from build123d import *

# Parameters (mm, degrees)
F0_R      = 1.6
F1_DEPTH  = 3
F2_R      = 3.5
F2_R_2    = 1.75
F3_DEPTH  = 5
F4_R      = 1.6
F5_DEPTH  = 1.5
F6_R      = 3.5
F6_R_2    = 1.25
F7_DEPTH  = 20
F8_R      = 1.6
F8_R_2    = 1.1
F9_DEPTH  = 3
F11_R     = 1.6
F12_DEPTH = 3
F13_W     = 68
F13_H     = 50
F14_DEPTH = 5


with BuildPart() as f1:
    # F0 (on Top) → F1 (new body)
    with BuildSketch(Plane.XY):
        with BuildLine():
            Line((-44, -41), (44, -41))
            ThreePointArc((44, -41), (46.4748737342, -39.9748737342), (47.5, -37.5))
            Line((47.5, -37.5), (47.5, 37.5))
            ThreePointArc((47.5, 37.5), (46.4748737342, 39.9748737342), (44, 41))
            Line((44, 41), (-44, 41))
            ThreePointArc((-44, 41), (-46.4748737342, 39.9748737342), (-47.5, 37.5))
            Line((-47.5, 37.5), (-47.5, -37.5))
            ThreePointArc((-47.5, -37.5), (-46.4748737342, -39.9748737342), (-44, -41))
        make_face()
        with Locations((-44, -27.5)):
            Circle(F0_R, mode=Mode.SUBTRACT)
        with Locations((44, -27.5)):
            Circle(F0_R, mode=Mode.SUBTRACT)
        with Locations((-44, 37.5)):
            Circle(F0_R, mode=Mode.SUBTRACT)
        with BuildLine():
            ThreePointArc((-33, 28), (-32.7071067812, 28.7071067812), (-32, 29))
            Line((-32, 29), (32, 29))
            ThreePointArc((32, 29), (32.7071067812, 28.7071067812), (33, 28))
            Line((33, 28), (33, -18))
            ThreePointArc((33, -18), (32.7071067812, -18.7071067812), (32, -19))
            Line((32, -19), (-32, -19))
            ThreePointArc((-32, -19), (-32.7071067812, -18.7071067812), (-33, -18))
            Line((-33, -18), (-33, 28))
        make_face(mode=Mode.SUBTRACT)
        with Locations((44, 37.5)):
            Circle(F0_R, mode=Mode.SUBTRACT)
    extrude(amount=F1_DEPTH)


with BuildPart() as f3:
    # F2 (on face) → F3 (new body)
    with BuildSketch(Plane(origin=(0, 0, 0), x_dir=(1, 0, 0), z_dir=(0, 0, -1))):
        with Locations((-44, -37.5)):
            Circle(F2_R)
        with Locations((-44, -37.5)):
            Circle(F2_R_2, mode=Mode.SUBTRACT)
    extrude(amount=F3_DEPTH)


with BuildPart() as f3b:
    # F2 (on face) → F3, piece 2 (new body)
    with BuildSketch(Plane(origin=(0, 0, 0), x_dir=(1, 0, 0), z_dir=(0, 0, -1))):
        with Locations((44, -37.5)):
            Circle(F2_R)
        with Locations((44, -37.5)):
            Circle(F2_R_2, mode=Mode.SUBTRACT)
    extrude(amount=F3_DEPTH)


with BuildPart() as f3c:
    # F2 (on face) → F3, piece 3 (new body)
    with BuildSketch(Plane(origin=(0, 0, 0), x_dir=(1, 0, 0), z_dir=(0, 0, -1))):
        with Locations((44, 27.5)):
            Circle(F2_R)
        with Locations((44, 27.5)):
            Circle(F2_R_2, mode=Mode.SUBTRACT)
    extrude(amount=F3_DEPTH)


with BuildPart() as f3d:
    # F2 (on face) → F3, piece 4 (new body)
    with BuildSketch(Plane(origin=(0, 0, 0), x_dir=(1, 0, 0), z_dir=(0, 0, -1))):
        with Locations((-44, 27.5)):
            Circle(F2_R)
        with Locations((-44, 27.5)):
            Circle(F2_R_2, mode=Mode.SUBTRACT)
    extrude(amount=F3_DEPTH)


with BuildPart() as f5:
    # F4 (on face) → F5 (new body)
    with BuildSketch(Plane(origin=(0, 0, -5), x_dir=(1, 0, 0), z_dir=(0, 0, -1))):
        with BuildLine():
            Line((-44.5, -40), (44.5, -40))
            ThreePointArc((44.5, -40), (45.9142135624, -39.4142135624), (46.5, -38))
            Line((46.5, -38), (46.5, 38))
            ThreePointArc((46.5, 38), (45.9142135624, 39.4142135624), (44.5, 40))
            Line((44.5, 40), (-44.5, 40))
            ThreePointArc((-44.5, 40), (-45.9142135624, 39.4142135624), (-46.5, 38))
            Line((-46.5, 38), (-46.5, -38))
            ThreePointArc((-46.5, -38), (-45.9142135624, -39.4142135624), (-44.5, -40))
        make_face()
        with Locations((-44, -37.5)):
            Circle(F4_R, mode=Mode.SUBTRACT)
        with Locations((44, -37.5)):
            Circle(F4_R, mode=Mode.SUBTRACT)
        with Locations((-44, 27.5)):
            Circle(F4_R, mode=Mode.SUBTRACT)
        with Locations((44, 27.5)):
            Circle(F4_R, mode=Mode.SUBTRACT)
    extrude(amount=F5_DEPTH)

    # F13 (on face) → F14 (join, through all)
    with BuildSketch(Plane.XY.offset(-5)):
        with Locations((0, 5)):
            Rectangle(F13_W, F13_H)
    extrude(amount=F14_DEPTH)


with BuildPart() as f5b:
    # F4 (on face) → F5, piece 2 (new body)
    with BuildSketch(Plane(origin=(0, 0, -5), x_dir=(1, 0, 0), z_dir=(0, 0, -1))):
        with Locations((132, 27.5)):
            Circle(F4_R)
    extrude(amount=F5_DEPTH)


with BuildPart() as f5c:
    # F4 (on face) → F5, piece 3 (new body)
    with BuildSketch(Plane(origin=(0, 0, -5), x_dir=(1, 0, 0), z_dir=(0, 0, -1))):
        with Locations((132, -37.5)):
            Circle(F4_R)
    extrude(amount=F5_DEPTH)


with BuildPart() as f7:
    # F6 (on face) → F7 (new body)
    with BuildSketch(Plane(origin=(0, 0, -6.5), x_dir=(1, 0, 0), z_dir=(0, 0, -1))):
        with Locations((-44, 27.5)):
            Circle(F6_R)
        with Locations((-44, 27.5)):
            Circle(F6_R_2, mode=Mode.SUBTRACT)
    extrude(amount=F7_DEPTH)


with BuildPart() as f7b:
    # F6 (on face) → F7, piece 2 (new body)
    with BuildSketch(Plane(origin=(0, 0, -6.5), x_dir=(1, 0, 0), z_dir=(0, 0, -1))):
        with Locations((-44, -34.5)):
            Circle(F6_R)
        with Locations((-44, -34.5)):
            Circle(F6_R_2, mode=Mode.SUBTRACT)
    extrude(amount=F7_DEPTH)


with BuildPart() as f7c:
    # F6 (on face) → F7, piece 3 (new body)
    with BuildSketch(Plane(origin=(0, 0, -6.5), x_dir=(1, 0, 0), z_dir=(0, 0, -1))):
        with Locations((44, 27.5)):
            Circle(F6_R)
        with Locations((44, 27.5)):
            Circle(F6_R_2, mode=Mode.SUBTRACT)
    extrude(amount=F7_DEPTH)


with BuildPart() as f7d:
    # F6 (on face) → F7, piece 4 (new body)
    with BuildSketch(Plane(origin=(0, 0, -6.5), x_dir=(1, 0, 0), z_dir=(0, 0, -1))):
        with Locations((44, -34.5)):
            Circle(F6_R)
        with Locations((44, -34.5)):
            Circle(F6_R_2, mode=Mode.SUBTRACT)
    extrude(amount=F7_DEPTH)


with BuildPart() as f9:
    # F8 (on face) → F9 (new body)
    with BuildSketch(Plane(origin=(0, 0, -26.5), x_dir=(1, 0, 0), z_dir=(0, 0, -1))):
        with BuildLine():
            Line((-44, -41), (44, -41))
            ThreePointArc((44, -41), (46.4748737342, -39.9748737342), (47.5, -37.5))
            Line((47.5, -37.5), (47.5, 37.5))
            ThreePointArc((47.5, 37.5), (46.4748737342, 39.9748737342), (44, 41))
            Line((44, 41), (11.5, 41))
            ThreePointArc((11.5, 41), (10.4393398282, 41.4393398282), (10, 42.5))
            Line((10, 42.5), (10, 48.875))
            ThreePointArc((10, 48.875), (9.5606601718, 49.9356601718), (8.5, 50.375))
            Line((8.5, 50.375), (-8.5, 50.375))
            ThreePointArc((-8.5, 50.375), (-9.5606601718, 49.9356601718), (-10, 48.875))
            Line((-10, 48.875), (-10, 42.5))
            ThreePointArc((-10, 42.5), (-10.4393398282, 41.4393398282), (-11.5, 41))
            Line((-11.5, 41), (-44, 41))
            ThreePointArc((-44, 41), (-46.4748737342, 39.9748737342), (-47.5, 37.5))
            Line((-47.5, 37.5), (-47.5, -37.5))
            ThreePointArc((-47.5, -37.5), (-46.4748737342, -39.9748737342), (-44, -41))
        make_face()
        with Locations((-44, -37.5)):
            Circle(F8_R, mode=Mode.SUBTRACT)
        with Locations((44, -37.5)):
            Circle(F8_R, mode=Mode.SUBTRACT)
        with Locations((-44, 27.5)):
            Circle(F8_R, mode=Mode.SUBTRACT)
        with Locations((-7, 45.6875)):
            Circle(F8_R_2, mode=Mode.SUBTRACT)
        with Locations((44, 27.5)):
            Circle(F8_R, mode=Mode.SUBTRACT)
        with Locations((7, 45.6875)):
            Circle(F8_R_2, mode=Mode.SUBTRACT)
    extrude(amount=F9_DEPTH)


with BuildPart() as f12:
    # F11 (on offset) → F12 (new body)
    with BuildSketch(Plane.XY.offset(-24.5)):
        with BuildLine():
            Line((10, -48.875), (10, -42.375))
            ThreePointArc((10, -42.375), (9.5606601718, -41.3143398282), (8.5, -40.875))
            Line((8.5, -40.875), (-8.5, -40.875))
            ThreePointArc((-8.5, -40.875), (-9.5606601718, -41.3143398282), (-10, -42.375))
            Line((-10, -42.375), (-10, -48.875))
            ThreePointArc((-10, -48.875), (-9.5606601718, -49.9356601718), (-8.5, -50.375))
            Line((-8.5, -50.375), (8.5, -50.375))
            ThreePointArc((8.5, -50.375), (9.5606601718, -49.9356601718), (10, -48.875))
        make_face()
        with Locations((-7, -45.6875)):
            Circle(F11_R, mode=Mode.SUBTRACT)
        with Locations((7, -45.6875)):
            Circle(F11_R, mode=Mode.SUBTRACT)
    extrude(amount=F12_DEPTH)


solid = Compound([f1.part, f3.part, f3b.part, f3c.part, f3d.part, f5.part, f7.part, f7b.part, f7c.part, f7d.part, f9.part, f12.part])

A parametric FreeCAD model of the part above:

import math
import FreeCAD as App
import Part
import Sketcher
Q = App.Units.Quantity


def add_polygon(sketch, points):
    """Adds a closed chain of lines whose ends are joined by coincident constraints."""
    first, n = sketch.GeometryCount, len(points)
    for a, b in zip(points, points[1:] + points[:1]):
        sketch.addGeometry(Part.LineSegment(App.Vector(*a, 0), App.Vector(*b, 0)), False)
    for i in range(n):
        sketch.addConstraint(Sketcher.Constraint("Coincident", first + i, 2, first + (i + 1) % n, 1))

doc = App.newDocument("Part")
body = doc.addObject("PartDesign::Body", "Body")

# Sketch on XY plane
sketch1 = body.newObject("Sketcher::SketchObject", "Sketch")
sketch1.AttachmentSupport = (doc.getObject("XY_Plane"), [""])
sketch1.MapMode = "FlatFace"
sketch1.addGeometry(Part.LineSegment(App.Vector(-44, -41, 0), App.Vector(44, -41, 0)), False)
sketch1.addGeometry(Part.ArcOfCircle(Part.Circle(App.Vector(44, -37.5, 0), App.Vector(0, 0, 1), 3.5), math.radians(-90), math.radians(0)), False)
sketch1.addGeometry(Part.LineSegment(App.Vector(47.5, -37.5, 0), App.Vector(47.5, 37.5, 0)), False)
sketch1.addGeometry(Part.ArcOfCircle(Part.Circle(App.Vector(44, 37.5, 0), App.Vector(0, 0, 1), 3.5), math.radians(0), math.radians(90)), False)
sketch1.addGeometry(Part.LineSegment(App.Vector(44, 41, 0), App.Vector(-44, 41, 0)), False)
sketch1.addGeometry(Part.ArcOfCircle(Part.Circle(App.Vector(-44, 37.5, 0), App.Vector(0, 0, 1), 3.5), math.radians(90), math.radians(180)), False)
sketch1.addGeometry(Part.LineSegment(App.Vector(-47.5, 37.5, 0), App.Vector(-47.5, -37.5, 0)), False)
sketch1.addGeometry(Part.ArcOfCircle(Part.Circle(App.Vector(-44, -37.5, 0), App.Vector(0, 0, 1), 3.5), math.radians(180), math.radians(270)), False)
sketch1.addGeometry(Part.Circle(App.Vector(-44, -27.5, 0), App.Vector(0, 0, 1), 1.6), False)
sketch1.addGeometry(Part.Circle(App.Vector(44, -27.5, 0), App.Vector(0, 0, 1), 1.6), False)
sketch1.addGeometry(Part.Circle(App.Vector(-44, 37.5, 0), App.Vector(0, 0, 1), 1.6), False)
sketch1.addGeometry(Part.LineSegment(App.Vector(-33, -18, 0), App.Vector(-33, 28, 0)), False)
sketch1.addGeometry(Part.ArcOfCircle(Part.Circle(App.Vector(-32, 28, 0), App.Vector(0, 0, 1), 1), math.radians(90), math.radians(180)), False)
sketch1.addGeometry(Part.LineSegment(App.Vector(-32, 29, 0), App.Vector(32, 29, 0)), False)
sketch1.addGeometry(Part.ArcOfCircle(Part.Circle(App.Vector(32, 28, 0), App.Vector(0, 0, 1), 1), math.radians(0), math.radians(90)), False)
sketch1.addGeometry(Part.LineSegment(App.Vector(33, 28, 0), App.Vector(33, -18, 0)), False)
sketch1.addGeometry(Part.ArcOfCircle(Part.Circle(App.Vector(32, -18, 0), App.Vector(0, 0, 1), 1), math.radians(-90), math.radians(0)), False)
sketch1.addGeometry(Part.LineSegment(App.Vector(32, -19, 0), App.Vector(-32, -19, 0)), False)
sketch1.addGeometry(Part.ArcOfCircle(Part.Circle(App.Vector(-32, -18, 0), App.Vector(0, 0, 1), 1), math.radians(180), math.radians(270)), False)
sketch1.addGeometry(Part.Circle(App.Vector(44, 37.5, 0), App.Vector(0, 0, 1), 1.6), False)
sketch1.addConstraint(Sketcher.Constraint("Tangent", 0, 2, 1, 1))
sketch1.addConstraint(Sketcher.Constraint("Tangent", 1, 2, 2, 1))
sketch1.addConstraint(Sketcher.Constraint("Tangent", 2, 2, 3, 1))
sketch1.addConstraint(Sketcher.Constraint("Tangent", 3, 2, 4, 1))
sketch1.addConstraint(Sketcher.Constraint("Tangent", 4, 2, 5, 1))
sketch1.addConstraint(Sketcher.Constraint("Tangent", 5, 2, 6, 1))
sketch1.addConstraint(Sketcher.Constraint("Tangent", 6, 2, 7, 1))
sketch1.addConstraint(Sketcher.Constraint("Tangent", 7, 2, 0, 1))
sketch1.addConstraint(Sketcher.Constraint("Tangent", 11, 2, 12, 2))
sketch1.addConstraint(Sketcher.Constraint("Tangent", 12, 1, 13, 1))
sketch1.addConstraint(Sketcher.Constraint("Tangent", 13, 2, 14, 2))
sketch1.addConstraint(Sketcher.Constraint("Tangent", 14, 1, 15, 1))
sketch1.addConstraint(Sketcher.Constraint("Tangent", 15, 2, 16, 2))
sketch1.addConstraint(Sketcher.Constraint("Tangent", 16, 1, 17, 1))
sketch1.addConstraint(Sketcher.Constraint("Tangent", 17, 2, 18, 2))
sketch1.addConstraint(Sketcher.Constraint("Tangent", 18, 1, 11, 1))
sketch1.addConstraint(Sketcher.Constraint("Horizontal", 0))
sketch1.addConstraint(Sketcher.Constraint("Vertical", 2))
sketch1.addConstraint(Sketcher.Constraint("Horizontal", 4))
sketch1.addConstraint(Sketcher.Constraint("Vertical", 6))
sketch1.addConstraint(Sketcher.Constraint("Vertical", 11))
sketch1.addConstraint(Sketcher.Constraint("Horizontal", 13))
sketch1.addConstraint(Sketcher.Constraint("Vertical", 15))
sketch1.addConstraint(Sketcher.Constraint("Horizontal", 17))
sketch1.addConstraint(Sketcher.Constraint("Coincident", 10, 3, 5, 3))
sketch1.addConstraint(Sketcher.Constraint("Coincident", 19, 3, 3, 3))
sketch1.addConstraint(Sketcher.Constraint("Equal", 1, 3))
sketch1.addConstraint(Sketcher.Constraint("Equal", 3, 5))
sketch1.addConstraint(Sketcher.Constraint("Equal", 5, 7))
sketch1.addConstraint(Sketcher.Constraint("Equal", 8, 9))
sketch1.addConstraint(Sketcher.Constraint("Equal", 9, 10))
sketch1.addConstraint(Sketcher.Constraint("Equal", 12, 14))
sketch1.addConstraint(Sketcher.Constraint("Equal", 14, 16))
sketch1.addConstraint(Sketcher.Constraint("Equal", 16, 18))
sketch1.addConstraint(Sketcher.Constraint("Equal", 10, 19))
sketch1.addConstraint(Sketcher.Constraint("Symmetric", 1, 3, 5, 3, -1, 1))
sketch1.addConstraint(Sketcher.Constraint("Symmetric", 8, 3, 9, 3, -2))
sketch1.addConstraint(Sketcher.Constraint("Vertical", 7, 3, 8, 3))
sketch1.addConstraint(Sketcher.Constraint("Radius", 12, Q("1 mm")))
sketch1.addConstraint(Sketcher.Constraint("Diameter", 8, Q("3.2 mm")))
sketch1.addConstraint(Sketcher.Constraint("Radius", 1, Q("3.5 mm")))
sketch1.addConstraint(Sketcher.Constraint("DistanceX", 0, 1, 0, 2, Q("88 mm")))
sketch1.addConstraint(Sketcher.Constraint("DistanceX", 13, 1, 13, 2, Q("64 mm")))
sketch1.addConstraint(Sketcher.Constraint("DistanceY", 2, 1, 2, 2, Q("75 mm")))
sketch1.addConstraint(Sketcher.Constraint("DistanceY", 11, 1, 11, 2, Q("46 mm")))
sketch1.addConstraint(Sketcher.Constraint("DistanceX", 12, 3, -1, 1, Q("32 mm")))
sketch1.addConstraint(Sketcher.Constraint("DistanceY", -1, 1, 12, 3, Q("28 mm")))
sketch1.addConstraint(Sketcher.Constraint("DistanceY", 7, 3, 8, 3, Q("10 mm")))
pad1 = body.newObject("PartDesign::Pad", "Pad")
pad1.Profile = sketch1
pad1.Length = 3
body2 = doc.addObject("PartDesign::Body", "Body001")

# Sketch on XY plane
sketch2 = body2.newObject("Sketcher::SketchObject", "Sketch001")
sketch2.AttachmentSupport = (doc.getObject("XY_Plane001"), [""])
sketch2.MapMode = "FlatFace"
sketch2.addGeometry(Part.Circle(App.Vector(-44, 37.5, 0), App.Vector(0, 0, 1), 3.5), False)
sketch2.addGeometry(Part.Circle(App.Vector(-44, 37.5, 0), App.Vector(0, 0, 1), 1.75), False)
sketch2.addConstraint(Sketcher.Constraint("Coincident", 1, 3, 0, 3))
sketch2.addConstraint(Sketcher.Constraint("Diameter", 0, Q("7 mm")))
sketch2.addConstraint(Sketcher.Constraint("Diameter", 1, Q("3.5 mm")))
sketch2.addConstraint(Sketcher.Constraint("DistanceX", 0, 3, -1, 1, Q("44 mm")))
sketch2.addConstraint(Sketcher.Constraint("DistanceY", -1, 1, 0, 3, Q("37.5 mm")))
pad2 = body2.newObject("PartDesign::Pad", "Pad001")
pad2.Profile = sketch2
pad2.Length = 5
pad2.Reversed = True
body3 = doc.addObject("PartDesign::Body", "Body002")

# Sketch on XY plane
sketch3 = body3.newObject("Sketcher::SketchObject", "Sketch002")
sketch3.AttachmentSupport = (doc.getObject("XY_Plane002"), [""])
sketch3.MapMode = "FlatFace"
sketch3.addGeometry(Part.Circle(App.Vector(44, 37.5, 0), App.Vector(0, 0, 1), 3.5), False)
sketch3.addGeometry(Part.Circle(App.Vector(44, 37.5, 0), App.Vector(0, 0, 1), 1.75), False)
sketch3.addConstraint(Sketcher.Constraint("Coincident", 1, 3, 0, 3))
sketch3.addConstraint(Sketcher.Constraint("Diameter", 0, Q("7 mm")))
sketch3.addConstraint(Sketcher.Constraint("Diameter", 1, Q("3.5 mm")))
sketch3.addConstraint(Sketcher.Constraint("DistanceX", -1, 1, 0, 3, Q("44 mm")))
sketch3.addConstraint(Sketcher.Constraint("DistanceY", -1, 1, 0, 3, Q("37.5 mm")))
pad3 = body3.newObject("PartDesign::Pad", "Pad002")
pad3.Profile = sketch3
pad3.Length = 5
pad3.Reversed = True
body4 = doc.addObject("PartDesign::Body", "Body003")

# Sketch on XY plane
sketch4 = body4.newObject("Sketcher::SketchObject", "Sketch003")
sketch4.AttachmentSupport = (doc.getObject("XY_Plane003"), [""])
sketch4.MapMode = "FlatFace"
sketch4.addGeometry(Part.Circle(App.Vector(44, -27.5, 0), App.Vector(0, 0, 1), 3.5), False)
sketch4.addGeometry(Part.Circle(App.Vector(44, -27.5, 0), App.Vector(0, 0, 1), 1.75), False)
sketch4.addConstraint(Sketcher.Constraint("Coincident", 1, 3, 0, 3))
sketch4.addConstraint(Sketcher.Constraint("Diameter", 0, Q("7 mm")))
sketch4.addConstraint(Sketcher.Constraint("Diameter", 1, Q("3.5 mm")))
sketch4.addConstraint(Sketcher.Constraint("DistanceX", -1, 1, 0, 3, Q("44 mm")))
sketch4.addConstraint(Sketcher.Constraint("DistanceY", 0, 3, -1, 1, Q("27.5 mm")))
pad4 = body4.newObject("PartDesign::Pad", "Pad003")
pad4.Profile = sketch4
pad4.Length = 5
pad4.Reversed = True
body5 = doc.addObject("PartDesign::Body", "Body004")

# Sketch on XY plane
sketch5 = body5.newObject("Sketcher::SketchObject", "Sketch004")
sketch5.AttachmentSupport = (doc.getObject("XY_Plane004"), [""])
sketch5.MapMode = "FlatFace"
sketch5.addGeometry(Part.Circle(App.Vector(-44, -27.5, 0), App.Vector(0, 0, 1), 3.5), False)
sketch5.addGeometry(Part.Circle(App.Vector(-44, -27.5, 0), App.Vector(0, 0, 1), 1.75), False)
sketch5.addConstraint(Sketcher.Constraint("Coincident", 1, 3, 0, 3))
sketch5.addConstraint(Sketcher.Constraint("Diameter", 0, Q("7 mm")))
sketch5.addConstraint(Sketcher.Constraint("Diameter", 1, Q("3.5 mm")))
sketch5.addConstraint(Sketcher.Constraint("DistanceX", 0, 3, -1, 1, Q("44 mm")))
sketch5.addConstraint(Sketcher.Constraint("DistanceY", 0, 3, -1, 1, Q("27.5 mm")))
pad5 = body5.newObject("PartDesign::Pad", "Pad004")
pad5.Profile = sketch5
pad5.Length = 5
pad5.Reversed = True
body6 = doc.addObject("PartDesign::Body", "Body005")

# Sketch on XY plane
sketch6 = body6.newObject("Sketcher::SketchObject", "Sketch005")
sketch6.AttachmentSupport = (doc.getObject("XY_Plane005"), [""])
sketch6.MapMode = "FlatFace"
sketch6.AttachmentOffset = App.Placement(App.Vector(0, 0, -5), App.Rotation())
sketch6.addGeometry(Part.LineSegment(App.Vector(-44.5, 40, 0), App.Vector(44.5, 40, 0)), False)
sketch6.addGeometry(Part.ArcOfCircle(Part.Circle(App.Vector(44.5, 38, 0), App.Vector(0, 0, 1), 2), math.radians(0), math.radians(90)), False)
sketch6.addGeometry(Part.LineSegment(App.Vector(46.5, 38, 0), App.Vector(46.5, -38, 0)), False)
sketch6.addGeometry(Part.ArcOfCircle(Part.Circle(App.Vector(44.5, -38, 0), App.Vector(0, 0, 1), 2), math.radians(-90), math.radians(0)), False)
sketch6.addGeometry(Part.LineSegment(App.Vector(44.5, -40, 0), App.Vector(-44.5, -40, 0)), False)
sketch6.addGeometry(Part.ArcOfCircle(Part.Circle(App.Vector(-44.5, -38, 0), App.Vector(0, 0, 1), 2), math.radians(180), math.radians(270)), False)
sketch6.addGeometry(Part.LineSegment(App.Vector(-46.5, -38, 0), App.Vector(-46.5, 38, 0)), False)
sketch6.addGeometry(Part.ArcOfCircle(Part.Circle(App.Vector(-44.5, 38, 0), App.Vector(0, 0, 1), 2), math.radians(90), math.radians(180)), False)
sketch6.addGeometry(Part.Circle(App.Vector(-44, 37.5, 0), App.Vector(0, 0, 1), 1.6), False)
sketch6.addGeometry(Part.Circle(App.Vector(44, 37.5, 0), App.Vector(0, 0, 1), 1.6), False)
sketch6.addGeometry(Part.Circle(App.Vector(-44, -27.5, 0), App.Vector(0, 0, 1), 1.6), False)
sketch6.addGeometry(Part.Circle(App.Vector(44, -27.5, 0), App.Vector(0, 0, 1), 1.6), False)
sketch6.addConstraint(Sketcher.Constraint("Tangent", 0, 2, 1, 2))
sketch6.addConstraint(Sketcher.Constraint("Tangent", 1, 1, 2, 1))
sketch6.addConstraint(Sketcher.Constraint("Tangent", 2, 2, 3, 2))
sketch6.addConstraint(Sketcher.Constraint("Tangent", 3, 1, 4, 1))
sketch6.addConstraint(Sketcher.Constraint("Tangent", 4, 2, 5, 2))
sketch6.addConstraint(Sketcher.Constraint("Tangent", 5, 1, 6, 1))
sketch6.addConstraint(Sketcher.Constraint("Tangent", 6, 2, 7, 2))
sketch6.addConstraint(Sketcher.Constraint("Tangent", 7, 1, 0, 1))
sketch6.addConstraint(Sketcher.Constraint("Horizontal", 0))
sketch6.addConstraint(Sketcher.Constraint("Vertical", 2))
sketch6.addConstraint(Sketcher.Constraint("Horizontal", 4))
sketch6.addConstraint(Sketcher.Constraint("Vertical", 6))
sketch6.addConstraint(Sketcher.Constraint("Equal", 1, 3))
sketch6.addConstraint(Sketcher.Constraint("Equal", 3, 5))
sketch6.addConstraint(Sketcher.Constraint("Equal", 5, 7))
sketch6.addConstraint(Sketcher.Constraint("Equal", 8, 9))
sketch6.addConstraint(Sketcher.Constraint("Equal", 9, 10))
sketch6.addConstraint(Sketcher.Constraint("Equal", 10, 11))
sketch6.addConstraint(Sketcher.Constraint("Symmetric", 1, 3, 5, 3, -1, 1))
sketch6.addConstraint(Sketcher.Constraint("Symmetric", 8, 3, 9, 3, -2))
sketch6.addConstraint(Sketcher.Constraint("Symmetric", 10, 3, 11, 3, -2))
sketch6.addConstraint(Sketcher.Constraint("Vertical", 8, 3, 10, 3))
sketch6.addConstraint(Sketcher.Constraint("Radius", 1, Q("2 mm")))
sketch6.addConstraint(Sketcher.Constraint("Diameter", 8, Q("3.2 mm")))
sketch6.addConstraint(Sketcher.Constraint("DistanceX", 0, 1, 0, 2, Q("89 mm")))
sketch6.addConstraint(Sketcher.Constraint("DistanceY", 2, 2, 2, 1, Q("76 mm")))
sketch6.addConstraint(Sketcher.Constraint("DistanceX", 8, 3, -1, 1, Q("44 mm")))
sketch6.addConstraint(Sketcher.Constraint("DistanceY", 10, 3, 8, 3, Q("65 mm")))
sketch6.addConstraint(Sketcher.Constraint("DistanceY", -1, 1, 8, 3, Q("37.5 mm")))
pad6 = body6.newObject("PartDesign::Pad", "Pad005")
pad6.Profile = sketch6
pad6.Length = 1.5
pad6.Reversed = True

# Sketch on XY plane
sketch7 = body6.newObject("Sketcher::SketchObject", "Sketch006")
sketch7.AttachmentSupport = (doc.getObject("XY_Plane005"), [""])
sketch7.MapMode = "FlatFace"
sketch7.AttachmentOffset = App.Placement(App.Vector(0, 0, -5), App.Rotation())
add_polygon(sketch7, [(-34, 30), (-34, -20), (34, -20), (34, 30)])  # lines 0-3
sketch7.addConstraint(Sketcher.Constraint("Vertical", 0))
sketch7.addConstraint(Sketcher.Constraint("Horizontal", 1))
sketch7.addConstraint(Sketcher.Constraint("Vertical", 2))
sketch7.addConstraint(Sketcher.Constraint("Horizontal", 3))
sketch7.addConstraint(Sketcher.Constraint("DistanceX", 1, 1, 1, 2, Q("68 mm")))
sketch7.addConstraint(Sketcher.Constraint("DistanceY", 0, 2, 0, 1, Q("50 mm")))
sketch7.addConstraint(Sketcher.Constraint("DistanceX", 0, 2, -1, 1, Q("34 mm")))
sketch7.addConstraint(Sketcher.Constraint("DistanceY", 0, 2, -1, 1, Q("20 mm")))
pad7 = body6.newObject("PartDesign::Pad", "Pad006")
pad7.Profile = sketch7
pad7.Length = 5
body7 = doc.addObject("PartDesign::Body", "Body006")

# Sketch on XY plane
sketch8 = body7.newObject("Sketcher::SketchObject", "Sketch007")
sketch8.AttachmentSupport = (doc.getObject("XY_Plane006"), [""])
sketch8.MapMode = "FlatFace"
sketch8.AttachmentOffset = App.Placement(App.Vector(0, 0, -5), App.Rotation())
sketch8.addGeometry(Part.Circle(App.Vector(132, -27.5, 0), App.Vector(0, 0, 1), 1.6), False)
sketch8.addConstraint(Sketcher.Constraint("Diameter", 0, Q("3.2 mm")))
sketch8.addConstraint(Sketcher.Constraint("DistanceX", -1, 1, 0, 3, Q("132 mm")))
sketch8.addConstraint(Sketcher.Constraint("DistanceY", 0, 3, -1, 1, Q("27.5 mm")))
pad8 = body7.newObject("PartDesign::Pad", "Pad007")
pad8.Profile = sketch8
pad8.Length = 1.5
pad8.Reversed = True
body8 = doc.addObject("PartDesign::Body", "Body007")

# Sketch on XY plane
sketch9 = body8.newObject("Sketcher::SketchObject", "Sketch008")
sketch9.AttachmentSupport = (doc.getObject("XY_Plane007"), [""])
sketch9.MapMode = "FlatFace"
sketch9.AttachmentOffset = App.Placement(App.Vector(0, 0, -5), App.Rotation())
sketch9.addGeometry(Part.Circle(App.Vector(132, 37.5, 0), App.Vector(0, 0, 1), 1.6), False)
sketch9.addConstraint(Sketcher.Constraint("Diameter", 0, Q("3.2 mm")))
sketch9.addConstraint(Sketcher.Constraint("DistanceX", -1, 1, 0, 3, Q("132 mm")))
sketch9.addConstraint(Sketcher.Constraint("DistanceY", -1, 1, 0, 3, Q("37.5 mm")))
pad9 = body8.newObject("PartDesign::Pad", "Pad008")
pad9.Profile = sketch9
pad9.Length = 1.5
pad9.Reversed = True
body9 = doc.addObject("PartDesign::Body", "Body008")

# Sketch on XY plane
sketch10 = body9.newObject("Sketcher::SketchObject", "Sketch009")
sketch10.AttachmentSupport = (doc.getObject("XY_Plane008"), [""])
sketch10.MapMode = "FlatFace"
sketch10.AttachmentOffset = App.Placement(App.Vector(0, 0, -6.5), App.Rotation())
sketch10.addGeometry(Part.Circle(App.Vector(-44, -27.5, 0), App.Vector(0, 0, 1), 3.5), False)
sketch10.addGeometry(Part.Circle(App.Vector(-44, -27.5, 0), App.Vector(0, 0, 1), 1.25), False)
sketch10.addConstraint(Sketcher.Constraint("Coincident", 1, 3, 0, 3))
sketch10.addConstraint(Sketcher.Constraint("Diameter", 0, Q("7 mm")))
sketch10.addConstraint(Sketcher.Constraint("Diameter", 1, Q("2.5 mm")))
sketch10.addConstraint(Sketcher.Constraint("DistanceX", 0, 3, -1, 1, Q("44 mm")))
sketch10.addConstraint(Sketcher.Constraint("DistanceY", 0, 3, -1, 1, Q("27.5 mm")))
pad10 = body9.newObject("PartDesign::Pad", "Pad009")
pad10.Profile = sketch10
pad10.Length = 20
pad10.Reversed = True
body10 = doc.addObject("PartDesign::Body", "Body009")

# Sketch on XY plane
sketch11 = body10.newObject("Sketcher::SketchObject", "Sketch010")
sketch11.AttachmentSupport = (doc.getObject("XY_Plane009"), [""])
sketch11.MapMode = "FlatFace"
sketch11.AttachmentOffset = App.Placement(App.Vector(0, 0, -6.5), App.Rotation())
sketch11.addGeometry(Part.Circle(App.Vector(-44, 34.5, 0), App.Vector(0, 0, 1), 3.5), False)
sketch11.addGeometry(Part.Circle(App.Vector(-44, 34.5, 0), App.Vector(0, 0, 1), 1.25), False)
sketch11.addConstraint(Sketcher.Constraint("Coincident", 1, 3, 0, 3))
sketch11.addConstraint(Sketcher.Constraint("Diameter", 0, Q("7 mm")))
sketch11.addConstraint(Sketcher.Constraint("Diameter", 1, Q("2.5 mm")))
sketch11.addConstraint(Sketcher.Constraint("DistanceX", 0, 3, -1, 1, Q("44 mm")))
sketch11.addConstraint(Sketcher.Constraint("DistanceY", -1, 1, 0, 3, Q("34.5 mm")))
pad11 = body10.newObject("PartDesign::Pad", "Pad010")
pad11.Profile = sketch11
pad11.Length = 20
pad11.Reversed = True
body11 = doc.addObject("PartDesign::Body", "Body010")

# Sketch on XY plane
sketch12 = body11.newObject("Sketcher::SketchObject", "Sketch011")
sketch12.AttachmentSupport = (doc.getObject("XY_Plane010"), [""])
sketch12.MapMode = "FlatFace"
sketch12.AttachmentOffset = App.Placement(App.Vector(0, 0, -6.5), App.Rotation())
sketch12.addGeometry(Part.Circle(App.Vector(44, -27.5, 0), App.Vector(0, 0, 1), 3.5), False)
sketch12.addGeometry(Part.Circle(App.Vector(44, -27.5, 0), App.Vector(0, 0, 1), 1.25), False)
sketch12.addConstraint(Sketcher.Constraint("Coincident", 1, 3, 0, 3))
sketch12.addConstraint(Sketcher.Constraint("Diameter", 0, Q("7 mm")))
sketch12.addConstraint(Sketcher.Constraint("Diameter", 1, Q("2.5 mm")))
sketch12.addConstraint(Sketcher.Constraint("DistanceX", -1, 1, 0, 3, Q("44 mm")))
sketch12.addConstraint(Sketcher.Constraint("DistanceY", 0, 3, -1, 1, Q("27.5 mm")))
pad12 = body11.newObject("PartDesign::Pad", "Pad011")
pad12.Profile = sketch12
pad12.Length = 20
pad12.Reversed = True
body12 = doc.addObject("PartDesign::Body", "Body011")

# Sketch on XY plane
sketch13 = body12.newObject("Sketcher::SketchObject", "Sketch012")
sketch13.AttachmentSupport = (doc.getObject("XY_Plane011"), [""])
sketch13.MapMode = "FlatFace"
sketch13.AttachmentOffset = App.Placement(App.Vector(0, 0, -6.5), App.Rotation())
sketch13.addGeometry(Part.Circle(App.Vector(44, 34.5, 0), App.Vector(0, 0, 1), 3.5), False)
sketch13.addGeometry(Part.Circle(App.Vector(44, 34.5, 0), App.Vector(0, 0, 1), 1.25), False)
sketch13.addConstraint(Sketcher.Constraint("Coincident", 1, 3, 0, 3))
sketch13.addConstraint(Sketcher.Constraint("Diameter", 0, Q("7 mm")))
sketch13.addConstraint(Sketcher.Constraint("Diameter", 1, Q("2.5 mm")))
sketch13.addConstraint(Sketcher.Constraint("DistanceX", -1, 1, 0, 3, Q("44 mm")))
sketch13.addConstraint(Sketcher.Constraint("DistanceY", -1, 1, 0, 3, Q("34.5 mm")))
pad13 = body12.newObject("PartDesign::Pad", "Pad012")
pad13.Profile = sketch13
pad13.Length = 20
pad13.Reversed = True
body13 = doc.addObject("PartDesign::Body", "Body012")

# Sketch on XY plane
sketch14 = body13.newObject("Sketcher::SketchObject", "Sketch013")
sketch14.AttachmentSupport = (doc.getObject("XY_Plane012"), [""])
sketch14.MapMode = "FlatFace"
sketch14.AttachmentOffset = App.Placement(App.Vector(0, 0, -26.5), App.Rotation())
sketch14.addGeometry(Part.LineSegment(App.Vector(-44, 41, 0), App.Vector(44, 41, 0)), False)
sketch14.addGeometry(Part.ArcOfCircle(Part.Circle(App.Vector(44, 37.5, 0), App.Vector(0, 0, 1), 3.5), math.radians(0), math.radians(90)), False)
sketch14.addGeometry(Part.LineSegment(App.Vector(47.5, 37.5, 0), App.Vector(47.5, -37.5, 0)), False)
sketch14.addGeometry(Part.ArcOfCircle(Part.Circle(App.Vector(44, -37.5, 0), App.Vector(0, 0, 1), 3.5), math.radians(-90), math.radians(0)), False)
sketch14.addGeometry(Part.LineSegment(App.Vector(44, -41, 0), App.Vector(11.5, -41, 0)), False)
sketch14.addGeometry(Part.ArcOfCircle(Part.Circle(App.Vector(11.5, -42.5, 0), App.Vector(0, 0, 1), 1.5), math.radians(90), math.radians(180)), False)
sketch14.addGeometry(Part.LineSegment(App.Vector(10, -42.5, 0), App.Vector(10, -48.875, 0)), False)
sketch14.addGeometry(Part.ArcOfCircle(Part.Circle(App.Vector(8.5, -48.875, 0), App.Vector(0, 0, 1), 1.5), math.radians(-90), math.radians(0)), False)
sketch14.addGeometry(Part.LineSegment(App.Vector(8.5, -50.375, 0), App.Vector(-8.5, -50.375, 0)), False)
sketch14.addGeometry(Part.ArcOfCircle(Part.Circle(App.Vector(-8.5, -48.875, 0), App.Vector(0, 0, 1), 1.5), math.radians(180), math.radians(270)), False)
sketch14.addGeometry(Part.LineSegment(App.Vector(-10, -48.875, 0), App.Vector(-10, -42.5, 0)), False)
sketch14.addGeometry(Part.ArcOfCircle(Part.Circle(App.Vector(-11.5, -42.5, 0), App.Vector(0, 0, 1), 1.5), math.radians(0), math.radians(90)), False)
sketch14.addGeometry(Part.LineSegment(App.Vector(-11.5, -41, 0), App.Vector(-44, -41, 0)), False)
sketch14.addGeometry(Part.ArcOfCircle(Part.Circle(App.Vector(-44, -37.5, 0), App.Vector(0, 0, 1), 3.5), math.radians(180), math.radians(270)), False)
sketch14.addGeometry(Part.LineSegment(App.Vector(-47.5, -37.5, 0), App.Vector(-47.5, 37.5, 0)), False)
sketch14.addGeometry(Part.ArcOfCircle(Part.Circle(App.Vector(-44, 37.5, 0), App.Vector(0, 0, 1), 3.5), math.radians(90), math.radians(180)), False)
sketch14.addGeometry(Part.Circle(App.Vector(-44, 37.5, 0), App.Vector(0, 0, 1), 1.6), False)
sketch14.addGeometry(Part.Circle(App.Vector(44, 37.5, 0), App.Vector(0, 0, 1), 1.6), False)
sketch14.addGeometry(Part.Circle(App.Vector(-44, -27.5, 0), App.Vector(0, 0, 1), 1.6), False)
sketch14.addGeometry(Part.Circle(App.Vector(-7, -45.6875, 0), App.Vector(0, 0, 1), 1.1), False)
sketch14.addGeometry(Part.Circle(App.Vector(7, -45.6875, 0), App.Vector(0, 0, 1), 1.1), False)
sketch14.addGeometry(Part.Circle(App.Vector(44, -27.5, 0), App.Vector(0, 0, 1), 1.6), False)
sketch14.addConstraint(Sketcher.Constraint("Tangent", 0, 2, 1, 2))
sketch14.addConstraint(Sketcher.Constraint("Tangent", 1, 1, 2, 1))
sketch14.addConstraint(Sketcher.Constraint("Tangent", 2, 2, 3, 2))
sketch14.addConstraint(Sketcher.Constraint("Tangent", 3, 1, 4, 1))
sketch14.addConstraint(Sketcher.Constraint("Tangent", 4, 2, 5, 1))
sketch14.addConstraint(Sketcher.Constraint("Tangent", 5, 2, 6, 1))
sketch14.addConstraint(Sketcher.Constraint("Tangent", 6, 2, 7, 2))
sketch14.addConstraint(Sketcher.Constraint("Tangent", 7, 1, 8, 1))
sketch14.addConstraint(Sketcher.Constraint("Tangent", 8, 2, 9, 2))
sketch14.addConstraint(Sketcher.Constraint("Tangent", 9, 1, 10, 1))
sketch14.addConstraint(Sketcher.Constraint("Tangent", 10, 2, 11, 1))
sketch14.addConstraint(Sketcher.Constraint("Tangent", 11, 2, 12, 1))
sketch14.addConstraint(Sketcher.Constraint("Tangent", 12, 2, 13, 2))
sketch14.addConstraint(Sketcher.Constraint("Tangent", 13, 1, 14, 1))
sketch14.addConstraint(Sketcher.Constraint("Tangent", 14, 2, 15, 2))
sketch14.addConstraint(Sketcher.Constraint("Tangent", 15, 1, 0, 1))
sketch14.addConstraint(Sketcher.Constraint("Horizontal", 0))
sketch14.addConstraint(Sketcher.Constraint("Vertical", 2))
sketch14.addConstraint(Sketcher.Constraint("Horizontal", 4))
sketch14.addConstraint(Sketcher.Constraint("Vertical", 6))
sketch14.addConstraint(Sketcher.Constraint("Horizontal", 8))
sketch14.addConstraint(Sketcher.Constraint("Vertical", 10))
sketch14.addConstraint(Sketcher.Constraint("Horizontal", 12))
sketch14.addConstraint(Sketcher.Constraint("Vertical", 14))
sketch14.addConstraint(Sketcher.Constraint("Coincident", 16, 3, 15, 3))
sketch14.addConstraint(Sketcher.Constraint("Coincident", 17, 3, 1, 3))
sketch14.addConstraint(Sketcher.Constraint("Equal", 1, 3))
sketch14.addConstraint(Sketcher.Constraint("Equal", 5, 7))
sketch14.addConstraint(Sketcher.Constraint("Equal", 7, 9))
sketch14.addConstraint(Sketcher.Constraint("Equal", 9, 11))
sketch14.addConstraint(Sketcher.Constraint("Equal", 3, 13))
sketch14.addConstraint(Sketcher.Constraint("Equal", 13, 15))
sketch14.addConstraint(Sketcher.Constraint("Equal", 16, 17))
sketch14.addConstraint(Sketcher.Constraint("Equal", 17, 18))
sketch14.addConstraint(Sketcher.Constraint("Equal", 19, 20))
sketch14.addConstraint(Sketcher.Constraint("Equal", 18, 21))
sketch14.addConstraint(Sketcher.Constraint("Symmetric", 1, 3, 13, 3, -1, 1))
sketch14.addConstraint(Sketcher.Constraint("Symmetric", 5, 3, 11, 3, -2))
sketch14.addConstraint(Sketcher.Constraint("Symmetric", 19, 3, 20, 3, -2))
sketch14.addConstraint(Sketcher.Constraint("Symmetric", 18, 3, 21, 3, -2))
sketch14.addConstraint(Sketcher.Constraint("Vertical", 16, 3, 18, 3))
sketch14.addConstraint(Sketcher.Constraint("Diameter", 16, Q("3.2 mm")))
sketch14.addConstraint(Sketcher.Constraint("Diameter", 19, Q("2.2 mm")))
sketch14.addConstraint(Sketcher.Constraint("Radius", 1, Q("3.5 mm")))
sketch14.addConstraint(Sketcher.Constraint("Radius", 5, Q("1.5 mm")))
sketch14.addConstraint(Sketcher.Constraint("DistanceX", 0, 1, 0, 2, Q("88 mm")))
sketch14.addConstraint(Sketcher.Constraint("DistanceX", 8, 2, 8, 1, Q("17 mm")))
sketch14.addConstraint(Sketcher.Constraint("DistanceY", 2, 2, 2, 1, Q("75 mm")))
sketch14.addConstraint(Sketcher.Constraint("DistanceX", 19, 3, -1, 1, Q("7 mm")))
sketch14.addConstraint(Sketcher.Constraint("DistanceY", 13, 3, 18, 3, Q("10 mm")))
sketch14.addConstraint(Sketcher.Constraint("DistanceY", 6, 2, 6, 1, Q("6.375 mm")))
sketch14.addConstraint(Sketcher.Constraint("DistanceY", 19, 3, -1, 1, Q("45.6875 mm")))
pad14 = body13.newObject("PartDesign::Pad", "Pad013")
pad14.Profile = sketch14
pad14.Length = 3
pad14.Reversed = True
body14 = doc.addObject("PartDesign::Body", "Body013")

# Sketch on XY plane
sketch15 = body14.newObject("Sketcher::SketchObject", "Sketch014")
sketch15.AttachmentSupport = (doc.getObject("XY_Plane013"), [""])
sketch15.MapMode = "FlatFace"
sketch15.AttachmentOffset = App.Placement(App.Vector(0, 0, -24.5), App.Rotation())
sketch15.addGeometry(Part.LineSegment(App.Vector(10, -48.875, 0), App.Vector(10, -42.375, 0)), False)
sketch15.addGeometry(Part.ArcOfCircle(Part.Circle(App.Vector(8.5, -42.375, 0), App.Vector(0, 0, 1), 1.5), math.radians(0), math.radians(90)), False)
sketch15.addGeometry(Part.LineSegment(App.Vector(8.5, -40.875, 0), App.Vector(-8.5, -40.875, 0)), False)
sketch15.addGeometry(Part.ArcOfCircle(Part.Circle(App.Vector(-8.5, -42.375, 0), App.Vector(0, 0, 1), 1.5), math.radians(90), math.radians(180)), False)
sketch15.addGeometry(Part.LineSegment(App.Vector(-10, -42.375, 0), App.Vector(-10, -48.875, 0)), False)
sketch15.addGeometry(Part.ArcOfCircle(Part.Circle(App.Vector(-8.5, -48.875, 0), App.Vector(0, 0, 1), 1.5), math.radians(180), math.radians(270)), False)
sketch15.addGeometry(Part.LineSegment(App.Vector(-8.5, -50.375, 0), App.Vector(8.5, -50.375, 0)), False)
sketch15.addGeometry(Part.ArcOfCircle(Part.Circle(App.Vector(8.5, -48.875, 0), App.Vector(0, 0, 1), 1.5), math.radians(-90), math.radians(0)), False)
sketch15.addGeometry(Part.Circle(App.Vector(-7, -45.6875, 0), App.Vector(0, 0, 1), 1.6), False)
sketch15.addGeometry(Part.Circle(App.Vector(7, -45.6875, 0), App.Vector(0, 0, 1), 1.6), False)
sketch15.addConstraint(Sketcher.Constraint("Tangent", 0, 2, 1, 1))
sketch15.addConstraint(Sketcher.Constraint("Tangent", 1, 2, 2, 1))
sketch15.addConstraint(Sketcher.Constraint("Tangent", 2, 2, 3, 1))
sketch15.addConstraint(Sketcher.Constraint("Tangent", 3, 2, 4, 1))
sketch15.addConstraint(Sketcher.Constraint("Tangent", 4, 2, 5, 1))
sketch15.addConstraint(Sketcher.Constraint("Tangent", 5, 2, 6, 1))
sketch15.addConstraint(Sketcher.Constraint("Tangent", 6, 2, 7, 1))
sketch15.addConstraint(Sketcher.Constraint("Tangent", 7, 2, 0, 1))
sketch15.addConstraint(Sketcher.Constraint("Vertical", 0))
sketch15.addConstraint(Sketcher.Constraint("Horizontal", 2))
sketch15.addConstraint(Sketcher.Constraint("Vertical", 4))
sketch15.addConstraint(Sketcher.Constraint("Horizontal", 6))
sketch15.addConstraint(Sketcher.Constraint("Equal", 1, 3))
sketch15.addConstraint(Sketcher.Constraint("Equal", 3, 5))
sketch15.addConstraint(Sketcher.Constraint("Equal", 5, 7))
sketch15.addConstraint(Sketcher.Constraint("Equal", 8, 9))
sketch15.addConstraint(Sketcher.Constraint("Symmetric", 8, 3, 9, 3, -2))
sketch15.addConstraint(Sketcher.Constraint("Diameter", 8, Q("3.2 mm")))
sketch15.addConstraint(Sketcher.Constraint("Radius", 1, Q("1.5 mm")))
sketch15.addConstraint(Sketcher.Constraint("DistanceX", 2, 2, 2, 1, Q("17 mm")))
sketch15.addConstraint(Sketcher.Constraint("DistanceY", 0, 1, 0, 2, Q("6.5 mm")))
sketch15.addConstraint(Sketcher.Constraint("DistanceX", 8, 3, -1, 1, Q("7 mm")))
sketch15.addConstraint(Sketcher.Constraint("DistanceX", -1, 1, 0, 2, Q("10 mm")))
sketch15.addConstraint(Sketcher.Constraint("DistanceY", 1, 3, -1, 1, Q("42.375 mm")))
sketch15.addConstraint(Sketcher.Constraint("DistanceY", 8, 3, -1, 1, Q("45.6875 mm")))
pad15 = body14.newObject("PartDesign::Pad", "Pad014")
pad15.Profile = sketch15
pad15.Length = 3
body7.Visibility = False
body8.Visibility = False

doc.recompute()
